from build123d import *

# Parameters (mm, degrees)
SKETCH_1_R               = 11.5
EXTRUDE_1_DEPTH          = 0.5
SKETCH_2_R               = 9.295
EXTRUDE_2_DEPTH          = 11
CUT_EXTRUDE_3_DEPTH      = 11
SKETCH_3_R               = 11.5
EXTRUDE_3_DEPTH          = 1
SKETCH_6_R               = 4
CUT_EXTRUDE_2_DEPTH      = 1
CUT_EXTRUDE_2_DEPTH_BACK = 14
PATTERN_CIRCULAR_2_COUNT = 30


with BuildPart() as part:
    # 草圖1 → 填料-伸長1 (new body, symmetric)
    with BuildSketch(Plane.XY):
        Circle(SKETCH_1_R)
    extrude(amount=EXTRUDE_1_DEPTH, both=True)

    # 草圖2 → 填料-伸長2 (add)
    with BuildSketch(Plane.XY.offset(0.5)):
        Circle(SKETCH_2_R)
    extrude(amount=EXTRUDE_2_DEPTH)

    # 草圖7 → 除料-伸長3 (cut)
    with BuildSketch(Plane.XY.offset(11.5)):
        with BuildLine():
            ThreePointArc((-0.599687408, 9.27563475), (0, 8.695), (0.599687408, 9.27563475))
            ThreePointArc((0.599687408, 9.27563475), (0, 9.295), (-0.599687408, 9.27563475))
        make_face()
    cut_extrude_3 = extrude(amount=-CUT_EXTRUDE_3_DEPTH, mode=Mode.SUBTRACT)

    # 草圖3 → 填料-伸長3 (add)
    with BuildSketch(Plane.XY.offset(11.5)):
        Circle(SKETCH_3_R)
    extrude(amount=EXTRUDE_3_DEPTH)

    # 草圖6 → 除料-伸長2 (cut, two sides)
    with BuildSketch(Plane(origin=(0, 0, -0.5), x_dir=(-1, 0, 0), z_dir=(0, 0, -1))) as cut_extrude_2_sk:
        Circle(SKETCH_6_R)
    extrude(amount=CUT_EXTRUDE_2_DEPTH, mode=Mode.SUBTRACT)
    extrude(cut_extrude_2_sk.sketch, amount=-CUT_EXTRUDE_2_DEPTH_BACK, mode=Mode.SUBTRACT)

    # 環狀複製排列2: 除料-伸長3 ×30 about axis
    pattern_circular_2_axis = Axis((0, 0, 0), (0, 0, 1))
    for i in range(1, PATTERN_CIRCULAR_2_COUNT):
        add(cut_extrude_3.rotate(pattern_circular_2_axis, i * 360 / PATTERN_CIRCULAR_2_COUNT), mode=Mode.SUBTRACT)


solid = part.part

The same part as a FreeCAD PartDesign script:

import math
import FreeCAD as App
import Part
import Sketcher
from FreeCAD import Vector

doc = App.newDocument("Part")
body = doc.addObject("PartDesign::Body", "Body")

# Sketch on XY plane
sketch1 = body.newObject("Sketcher::SketchObject", "Sketch")
sketch1.AttachmentSupport = (doc.getObject("XY_Plane"), [""])
sketch1.MapMode = "FlatFace"
sketch1.addGeometry(Part.Circle(Vector(0, 0, 0), Vector(0, 0, 1), 12), False)
sketch1.addConstraint(Sketcher.Constraint("Coincident", 0, 3, -1, 1))
sketch1.addConstraint(Sketcher.Constraint("Diameter", 0, 23.0))
pad1 = body.newObject("PartDesign::Pad", "Pad")
pad1.Profile = sketch1
pad1.Length = 1
pad1.Midplane = True

# Sketch on XY plane
sketch2 = body.newObject("Sketcher::SketchObject", "Sketch001")
sketch2.AttachmentSupport = (doc.getObject("XY_Plane"), [""])
sketch2.MapMode = "FlatFace"
sketch2.AttachmentOffset = App.Placement(Vector(0, 0, 0.5), App.Rotation())
sketch2.addGeometry(Part.Circle(Vector(0, 0, 0), Vector(0, 0, 1), 9), False)
sketch2.addConstraint(Sketcher.Constraint("Coincident", 0, 3, -1, 1))
sketch2.addConstraint(Sketcher.Constraint("Diameter", 0, 18.59))
pad2 = body.newObject("PartDesign::Pad", "Pad001")
pad2.Profile = sketch2
pad2.Length = 11

# Sketch on XY plane
sketch3 = body.newObject("Sketcher::SketchObject", "Sketch002")
sketch3.AttachmentSupport = (doc.getObject("XY_Plane"), [""])
sketch3.MapMode = "FlatFace"
sketch3.AttachmentOffset = App.Placement(Vector(0, 0, 11.5), App.Rotation())
sketch3.addGeometry(Part.ArcOfCircle(Part.Circle(Vector(0, 9.3, 0), Vector(0, 0, 1), 0.6), math.radians(-178), math.radians(-2)), False)
sketch3.addGeometry(Part.ArcOfCircle(Part.Circle(Vector(0, 0, 0), Vector(0, 0, 1), 9.3), math.radians(86.3), math.radians(93.7)), False)
sketch3.addConstraint(Sketcher.Constraint("Coincident", 0, 1, 1, 2))
sketch3.addConstraint(Sketcher.Constraint("Coincident", 1, 1, 0, 2))
sketch3.addConstraint(Sketcher.Constraint("Coincident", 1, 3, -1, 1))
sketch3.addConstraint(Sketcher.Constraint("PointOnObject", 0, 3, -2))
sketch3.addConstraint(Sketcher.Constraint("Radius", 0, 0.6))
sketch3.addConstraint(Sketcher.Constraint("Radius", 1, 9.295))
sketch3.addConstraint(Sketcher.Constraint("DistanceY", -1, 1, 0, 3, 9.295))
pocket1 = body.newObject("PartDesign::Pocket", "Pocket")
pocket1.Profile = sketch3
pocket1.Length = 11

# Sketch on XY plane
sketch4 = body.newObject("Sketcher::SketchObject", "Sketch003")
sketch4.AttachmentSupport = (doc.getObject("XY_Plane"), [""])
sketch4.MapMode = "FlatFace"
sketch4.AttachmentOffset = App.Placement(Vector(0, 0, 11.5), App.Rotation())
sketch4.addGeometry(Part.Circle(Vector(0, 0, 0), Vector(0, 0, 1), 12), False)
sketch4.addConstraint(Sketcher.Constraint("Coincident", 0, 3, -1, 1))
sketch4.addConstraint(Sketcher.Constraint("Diameter", 0, 23.0))
pad3 = body.newObject("PartDesign::Pad", "Pad002")
pad3.Profile = sketch4
pad3.Length = 1

# Sketch on XY plane
sketch5 = body.newObject("Sketcher::SketchObject", "Sketch004")
sketch5.AttachmentSupport = (doc.getObject("XY_Plane"), [""])
sketch5.MapMode = "FlatFace"
sketch5.AttachmentOffset = App.Placement(Vector(0, 0, -0.5), App.Rotation())
sketch5.addGeometry(Part.Circle(Vector(0, 0, 0), Vector(0, 0, 1), 4), False)
sketch5.addConstraint(Sketcher.Constraint("Coincident", 0, 3, -1, 1))
sketch5.addConstraint(Sketcher.Constraint("Diameter", 0, 8.0))
pocket2 = body.newObject("PartDesign::Pocket", "Pocket001")
pocket2.Profile = sketch5
pocket2.Type = "ThroughAll"
pocket2.Midplane = True
doc.recompute()

polarpattern = body.newObject("PartDesign::PolarPattern", "PolarPattern")
polarpattern.Originals = [pocket1]
polarpattern.Axis = (doc.getObject("Z_Axis"), [""])
polarpattern.Angle = 360
polarpattern.Occurrences = 30
body.Tip = polarpattern

doc.recompute()
